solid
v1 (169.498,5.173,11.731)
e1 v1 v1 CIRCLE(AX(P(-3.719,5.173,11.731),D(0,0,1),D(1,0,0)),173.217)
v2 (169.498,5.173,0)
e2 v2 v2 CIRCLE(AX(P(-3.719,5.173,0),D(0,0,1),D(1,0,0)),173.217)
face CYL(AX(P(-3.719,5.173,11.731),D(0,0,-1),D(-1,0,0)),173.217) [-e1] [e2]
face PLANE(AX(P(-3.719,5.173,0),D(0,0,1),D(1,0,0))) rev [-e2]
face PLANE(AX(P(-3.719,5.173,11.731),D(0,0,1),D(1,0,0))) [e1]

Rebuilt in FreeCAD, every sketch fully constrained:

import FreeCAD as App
import Part
import Sketcher

doc = App.newDocument("Part")
params = doc.addObject("Spreadsheet::Sheet", "Params")
for row, (alias, value) in enumerate([
    ("pad1_length", "11.731 mm"),
], start=1):
    params.set(f"A{row}", alias)
    params.set(f"B{row}", "=" + value)
    params.setAlias(f"B{row}", alias)

body = doc.addObject("PartDesign::Body", "Body")

sketch1 = body.newObject("Sketcher::SketchObject", "Sketch")
sketch1.AttachmentSupport = (doc.getObject("XY_Plane"), [""])
sketch1.MapMode = "FlatFace"
sketch1.addGeometry(Part.Circle(App.Vector(-4, 5, 0), App.Vector(0, 0, 1), 173), False)
sketch1.addConstraint([
    Sketcher.Constraint("Diameter", 0, 346.434),
    Sketcher.Constraint("DistanceX", 0, 3, -1, 1, 3.719),
    Sketcher.Constraint("DistanceY", -1, 1, 0, 3, 5.173),
])
pad1 = body.newObject("PartDesign::Pad", "Pad")
pad1.Profile = sketch1
pad1.setExpression("Length", "Params.pad1_length")

doc.recompute()
